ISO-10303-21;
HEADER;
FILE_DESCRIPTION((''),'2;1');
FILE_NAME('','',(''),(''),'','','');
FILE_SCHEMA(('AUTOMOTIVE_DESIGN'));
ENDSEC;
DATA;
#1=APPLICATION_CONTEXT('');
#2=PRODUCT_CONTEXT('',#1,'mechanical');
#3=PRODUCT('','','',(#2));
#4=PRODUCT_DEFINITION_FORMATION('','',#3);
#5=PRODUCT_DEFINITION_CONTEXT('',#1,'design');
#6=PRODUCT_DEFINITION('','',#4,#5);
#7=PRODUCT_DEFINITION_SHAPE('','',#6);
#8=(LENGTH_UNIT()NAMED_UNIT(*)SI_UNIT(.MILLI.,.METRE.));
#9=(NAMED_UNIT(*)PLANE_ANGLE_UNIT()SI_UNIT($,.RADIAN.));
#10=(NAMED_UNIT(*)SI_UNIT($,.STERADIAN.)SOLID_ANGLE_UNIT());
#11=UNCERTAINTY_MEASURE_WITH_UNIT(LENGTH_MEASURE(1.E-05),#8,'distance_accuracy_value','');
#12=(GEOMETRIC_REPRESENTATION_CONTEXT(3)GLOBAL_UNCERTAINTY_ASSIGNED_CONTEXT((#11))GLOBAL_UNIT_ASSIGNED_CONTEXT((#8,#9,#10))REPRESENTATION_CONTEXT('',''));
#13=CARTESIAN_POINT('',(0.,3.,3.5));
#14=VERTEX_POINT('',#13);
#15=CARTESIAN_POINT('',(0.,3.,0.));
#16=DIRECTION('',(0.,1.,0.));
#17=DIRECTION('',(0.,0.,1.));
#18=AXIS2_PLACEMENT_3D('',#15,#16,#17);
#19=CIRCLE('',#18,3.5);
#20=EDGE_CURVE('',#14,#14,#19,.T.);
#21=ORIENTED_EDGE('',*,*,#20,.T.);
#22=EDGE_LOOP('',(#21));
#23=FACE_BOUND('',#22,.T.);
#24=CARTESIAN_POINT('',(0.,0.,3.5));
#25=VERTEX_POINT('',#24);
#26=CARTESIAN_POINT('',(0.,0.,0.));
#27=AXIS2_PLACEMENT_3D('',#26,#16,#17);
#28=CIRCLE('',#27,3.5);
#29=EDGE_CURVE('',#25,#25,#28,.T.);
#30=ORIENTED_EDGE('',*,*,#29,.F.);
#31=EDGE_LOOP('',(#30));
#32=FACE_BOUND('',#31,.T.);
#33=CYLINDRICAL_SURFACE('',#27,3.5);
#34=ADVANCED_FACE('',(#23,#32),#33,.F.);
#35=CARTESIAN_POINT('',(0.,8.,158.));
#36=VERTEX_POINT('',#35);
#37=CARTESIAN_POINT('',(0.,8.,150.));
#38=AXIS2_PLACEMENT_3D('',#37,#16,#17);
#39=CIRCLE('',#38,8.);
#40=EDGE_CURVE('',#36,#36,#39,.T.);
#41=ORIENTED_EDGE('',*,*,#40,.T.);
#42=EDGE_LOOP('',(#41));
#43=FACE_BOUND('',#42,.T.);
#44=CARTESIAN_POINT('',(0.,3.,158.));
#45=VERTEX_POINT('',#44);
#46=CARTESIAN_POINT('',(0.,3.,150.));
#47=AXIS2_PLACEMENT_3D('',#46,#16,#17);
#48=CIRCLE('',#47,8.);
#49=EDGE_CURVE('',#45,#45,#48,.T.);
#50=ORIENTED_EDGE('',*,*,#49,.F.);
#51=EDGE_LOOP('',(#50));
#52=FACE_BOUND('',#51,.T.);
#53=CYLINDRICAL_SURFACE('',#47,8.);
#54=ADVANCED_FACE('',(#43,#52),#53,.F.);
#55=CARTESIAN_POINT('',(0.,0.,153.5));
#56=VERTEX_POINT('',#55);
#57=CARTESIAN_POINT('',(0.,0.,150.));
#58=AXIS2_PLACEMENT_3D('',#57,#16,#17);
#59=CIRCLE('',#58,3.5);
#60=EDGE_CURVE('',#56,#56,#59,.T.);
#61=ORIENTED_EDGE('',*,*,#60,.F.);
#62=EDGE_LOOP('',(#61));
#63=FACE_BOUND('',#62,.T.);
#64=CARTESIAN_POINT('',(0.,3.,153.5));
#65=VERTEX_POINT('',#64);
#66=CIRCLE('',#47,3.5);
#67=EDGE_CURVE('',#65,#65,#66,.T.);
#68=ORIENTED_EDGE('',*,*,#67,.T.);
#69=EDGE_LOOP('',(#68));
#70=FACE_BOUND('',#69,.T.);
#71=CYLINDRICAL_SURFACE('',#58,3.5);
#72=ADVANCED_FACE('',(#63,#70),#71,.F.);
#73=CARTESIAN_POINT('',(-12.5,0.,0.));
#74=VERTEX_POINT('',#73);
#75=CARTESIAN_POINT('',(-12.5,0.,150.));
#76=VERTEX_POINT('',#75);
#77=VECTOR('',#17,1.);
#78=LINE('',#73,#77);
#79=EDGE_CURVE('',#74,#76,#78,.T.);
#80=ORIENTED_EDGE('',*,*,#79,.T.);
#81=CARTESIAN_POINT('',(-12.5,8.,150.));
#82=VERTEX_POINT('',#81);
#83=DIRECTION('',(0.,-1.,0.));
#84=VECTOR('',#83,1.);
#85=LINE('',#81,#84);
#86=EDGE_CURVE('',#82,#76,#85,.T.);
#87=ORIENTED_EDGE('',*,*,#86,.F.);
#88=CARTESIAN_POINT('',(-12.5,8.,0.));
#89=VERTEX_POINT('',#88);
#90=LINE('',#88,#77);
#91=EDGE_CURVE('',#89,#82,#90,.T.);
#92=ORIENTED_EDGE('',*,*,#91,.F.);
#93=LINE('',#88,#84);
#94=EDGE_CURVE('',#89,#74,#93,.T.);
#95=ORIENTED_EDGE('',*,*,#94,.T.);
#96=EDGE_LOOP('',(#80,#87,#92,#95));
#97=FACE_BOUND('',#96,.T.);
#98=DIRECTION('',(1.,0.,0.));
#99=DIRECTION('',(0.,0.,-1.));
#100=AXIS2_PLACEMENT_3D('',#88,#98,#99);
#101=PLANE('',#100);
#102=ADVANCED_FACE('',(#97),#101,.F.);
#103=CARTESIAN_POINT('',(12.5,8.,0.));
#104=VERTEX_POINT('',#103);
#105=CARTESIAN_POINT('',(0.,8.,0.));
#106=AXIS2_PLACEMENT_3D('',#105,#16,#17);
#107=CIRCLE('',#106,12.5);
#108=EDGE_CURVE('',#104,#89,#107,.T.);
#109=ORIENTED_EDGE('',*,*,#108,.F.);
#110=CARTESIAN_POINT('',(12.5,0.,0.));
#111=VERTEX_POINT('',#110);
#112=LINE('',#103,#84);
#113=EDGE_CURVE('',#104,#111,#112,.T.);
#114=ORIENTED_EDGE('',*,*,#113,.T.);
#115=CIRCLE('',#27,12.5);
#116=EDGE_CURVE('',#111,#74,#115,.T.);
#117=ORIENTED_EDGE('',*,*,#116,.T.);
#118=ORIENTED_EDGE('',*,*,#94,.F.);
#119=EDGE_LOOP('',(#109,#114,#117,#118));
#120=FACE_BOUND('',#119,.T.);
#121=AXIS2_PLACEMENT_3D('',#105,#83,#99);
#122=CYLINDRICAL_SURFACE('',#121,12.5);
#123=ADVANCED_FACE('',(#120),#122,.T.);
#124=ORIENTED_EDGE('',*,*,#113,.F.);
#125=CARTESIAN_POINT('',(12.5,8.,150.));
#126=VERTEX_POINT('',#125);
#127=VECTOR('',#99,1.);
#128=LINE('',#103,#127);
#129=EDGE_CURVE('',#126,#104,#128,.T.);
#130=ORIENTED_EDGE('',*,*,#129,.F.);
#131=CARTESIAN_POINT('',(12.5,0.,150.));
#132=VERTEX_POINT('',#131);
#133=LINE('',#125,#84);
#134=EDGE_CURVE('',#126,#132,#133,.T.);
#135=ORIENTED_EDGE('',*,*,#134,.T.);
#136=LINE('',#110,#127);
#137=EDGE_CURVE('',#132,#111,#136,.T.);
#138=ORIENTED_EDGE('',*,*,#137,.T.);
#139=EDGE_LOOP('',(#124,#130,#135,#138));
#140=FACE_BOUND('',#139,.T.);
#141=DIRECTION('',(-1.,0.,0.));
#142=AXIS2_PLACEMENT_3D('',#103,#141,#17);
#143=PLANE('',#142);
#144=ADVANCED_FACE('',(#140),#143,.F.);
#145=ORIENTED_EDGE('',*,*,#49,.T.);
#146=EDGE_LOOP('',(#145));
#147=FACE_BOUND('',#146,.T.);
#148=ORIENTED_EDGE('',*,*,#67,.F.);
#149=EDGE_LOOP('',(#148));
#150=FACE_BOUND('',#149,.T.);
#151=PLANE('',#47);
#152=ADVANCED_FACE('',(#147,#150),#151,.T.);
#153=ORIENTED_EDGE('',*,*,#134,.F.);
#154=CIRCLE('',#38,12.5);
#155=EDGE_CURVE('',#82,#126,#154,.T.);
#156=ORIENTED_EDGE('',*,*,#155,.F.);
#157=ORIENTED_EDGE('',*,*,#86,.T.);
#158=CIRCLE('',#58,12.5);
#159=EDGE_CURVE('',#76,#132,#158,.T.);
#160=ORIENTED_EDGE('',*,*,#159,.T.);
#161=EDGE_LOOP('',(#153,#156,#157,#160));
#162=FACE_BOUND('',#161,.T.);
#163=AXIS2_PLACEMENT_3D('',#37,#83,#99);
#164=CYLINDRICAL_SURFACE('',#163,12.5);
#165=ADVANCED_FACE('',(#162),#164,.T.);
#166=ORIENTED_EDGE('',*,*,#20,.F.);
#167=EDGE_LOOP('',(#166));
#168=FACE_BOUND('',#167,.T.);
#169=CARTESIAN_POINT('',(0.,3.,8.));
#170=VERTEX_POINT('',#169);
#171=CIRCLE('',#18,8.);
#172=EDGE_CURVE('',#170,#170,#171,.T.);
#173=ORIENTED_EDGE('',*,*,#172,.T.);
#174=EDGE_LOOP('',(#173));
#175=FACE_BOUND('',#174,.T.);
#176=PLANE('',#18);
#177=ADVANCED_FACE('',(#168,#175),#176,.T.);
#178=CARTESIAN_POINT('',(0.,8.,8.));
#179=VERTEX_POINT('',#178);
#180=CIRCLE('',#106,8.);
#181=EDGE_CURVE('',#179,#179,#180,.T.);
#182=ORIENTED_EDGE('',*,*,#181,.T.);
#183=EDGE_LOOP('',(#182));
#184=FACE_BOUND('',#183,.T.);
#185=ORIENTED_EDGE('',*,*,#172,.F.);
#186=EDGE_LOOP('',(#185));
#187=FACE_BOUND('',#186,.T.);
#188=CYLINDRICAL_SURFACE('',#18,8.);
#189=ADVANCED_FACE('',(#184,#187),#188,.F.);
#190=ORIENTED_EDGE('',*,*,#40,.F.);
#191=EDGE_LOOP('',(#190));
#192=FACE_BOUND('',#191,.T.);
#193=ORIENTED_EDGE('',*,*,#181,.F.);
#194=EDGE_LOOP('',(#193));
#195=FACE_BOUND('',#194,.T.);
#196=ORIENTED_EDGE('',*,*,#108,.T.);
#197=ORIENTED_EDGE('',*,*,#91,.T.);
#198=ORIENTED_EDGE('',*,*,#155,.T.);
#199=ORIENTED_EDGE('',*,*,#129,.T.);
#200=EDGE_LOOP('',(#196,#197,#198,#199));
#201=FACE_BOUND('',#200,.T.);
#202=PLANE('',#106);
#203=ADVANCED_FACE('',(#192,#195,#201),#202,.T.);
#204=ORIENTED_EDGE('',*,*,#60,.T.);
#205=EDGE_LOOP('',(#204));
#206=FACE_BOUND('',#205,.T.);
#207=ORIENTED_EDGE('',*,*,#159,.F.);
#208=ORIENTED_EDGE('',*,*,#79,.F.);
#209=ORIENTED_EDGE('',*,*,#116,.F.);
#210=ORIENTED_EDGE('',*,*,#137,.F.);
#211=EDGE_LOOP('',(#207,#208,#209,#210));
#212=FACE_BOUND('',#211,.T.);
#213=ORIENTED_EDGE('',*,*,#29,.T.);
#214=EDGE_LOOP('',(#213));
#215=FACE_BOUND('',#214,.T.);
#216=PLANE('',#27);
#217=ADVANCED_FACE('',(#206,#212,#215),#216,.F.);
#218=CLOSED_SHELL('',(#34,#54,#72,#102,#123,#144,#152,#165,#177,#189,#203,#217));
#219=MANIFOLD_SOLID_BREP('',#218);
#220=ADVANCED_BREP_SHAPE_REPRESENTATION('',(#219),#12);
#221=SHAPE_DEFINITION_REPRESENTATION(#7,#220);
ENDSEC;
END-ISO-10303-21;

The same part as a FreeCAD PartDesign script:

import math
import FreeCAD as App
import Part
import Sketcher

doc = App.newDocument("Part")
params = doc.addObject("Spreadsheet::Sheet", "Params")
for row, (alias, value) in enumerate([
    ("sketch1_radius", "12.5 mm"),
    ("sketch1_height", "150 mm"),
    ("pad1_length", "8 mm"),
    ("sketch2_diameter", "16 mm"),
    ("pocket1_length", "5 mm"),
    ("sketch3_diameter", "7 mm"),
    ("sketch4_diameter", "16 mm"),
    ("pocket3_length", "5 mm"),
    ("sketch5_diameter", "7 mm"),
], start=1):
    params.set(f"A{row}", alias)
    params.set(f"B{row}", "=" + value)
    params.setAlias(f"B{row}", alias)

body = doc.addObject("PartDesign::Body", "Body")

# Sketch on XZ plane
sketch1 = body.newObject("Sketcher::SketchObject", "Sketch")
sketch1.AttachmentSupport = (doc.getObject("XZ_Plane"), [""])
sketch1.MapMode = "FlatFace"
sketch1.addGeometry([
    Part.LineSegment(App.Vector(-12, 0, 0), App.Vector(-12, 150, 0)),
    Part.ArcOfCircle(Part.Circle(App.Vector(0, 150, 0), App.Vector(0, 0, 1), 12), math.radians(0), math.radians(180)),
    Part.LineSegment(App.Vector(12, 150, 0), App.Vector(12, 0, 0)),
    Part.ArcOfCircle(Part.Circle(App.Vector(0, 0, 0), App.Vector(0, 0, 1), 12), math.radians(180), math.radians(360)),
], False)
sketch1.addConstraint([
    Sketcher.Constraint("Tangent", 0, 2, 1, 2),
    Sketcher.Constraint("Tangent", 1, 1, 2, 1),
    Sketcher.Constraint("Tangent", 2, 2, 3, 2),
    Sketcher.Constraint("Tangent", 3, 1, 0, 1),
    Sketcher.Constraint("Vertical", 0),
    Sketcher.Constraint("Vertical", 2),
    Sketcher.Constraint("Coincident", 3, 3, -1, 1),
    Sketcher.Constraint("Radius", 1, 12.5),
    Sketcher.Constraint("DistanceY", 0, 1, 0, 2, 150.0),
])
sketch1.setExpression("Constraints[7]", "Params.sketch1_radius")
sketch1.setExpression("Constraints[8]", "Params.sketch1_height")
pad1 = body.newObject("PartDesign::Pad", "Pad")
pad1.Profile = sketch1
pad1.setExpression("Length", "Params.pad1_length")
pad1.Reversed = True

# Sketch on XZ plane
sketch2 = body.newObject("Sketcher::SketchObject", "Sketch001")
sketch2.AttachmentSupport = (doc.getObject("XZ_Plane"), [""])
sketch2.MapMode = "FlatFace"
sketch2.AttachmentOffset = App.Placement(App.Vector(0, 0, -8), App.Rotation())
sketch2.addGeometry(Part.Circle(App.Vector(0, 0, 0), App.Vector(0, 0, 1), 8), False)
sketch2.addConstraint([
    Sketcher.Constraint("Coincident", 0, 3, -1, 1),
    Sketcher.Constraint("Diameter", 0, 16.0),
])
sketch2.setExpression("Constraints[1]", "Params.sketch2_diameter")
pocket1 = body.newObject("PartDesign::Pocket", "Pocket")
pocket1.Profile = sketch2
pocket1.setExpression("Length", "Params.pocket1_length")
pocket1.Reversed = True

# Sketch on XZ plane
sketch3 = body.newObject("Sketcher::SketchObject", "Sketch002")
sketch3.AttachmentSupport = (doc.getObject("XZ_Plane"), [""])
sketch3.MapMode = "FlatFace"
sketch3.AttachmentOffset = App.Placement(App.Vector(0, 0, -8), App.Rotation())
sketch3.addGeometry(Part.Circle(App.Vector(0, 0, 0), App.Vector(0, 0, 1), 3.5), False)
sketch3.addConstraint([
    Sketcher.Constraint("Coincident", 0, 3, -1, 1),
    Sketcher.Constraint("Diameter", 0, 7.0),
])
sketch3.setExpression("Constraints[1]", "Params.sketch3_diameter")
pocket2 = body.newObject("PartDesign::Pocket", "Pocket001")
pocket2.Profile = sketch3
pocket2.Type = "ThroughAll"
pocket2.Reversed = True

# Sketch on XZ plane
sketch4 = body.newObject("Sketcher::SketchObject", "Sketch003")
sketch4.AttachmentSupport = (doc.getObject("XZ_Plane"), [""])
sketch4.MapMode = "FlatFace"
sketch4.AttachmentOffset = App.Placement(App.Vector(0, 0, -8), App.Rotation())
sketch4.addGeometry(Part.Circle(App.Vector(0, 150, 0), App.Vector(0, 0, 1), 8), False)
sketch4.addConstraint([
    Sketcher.Constraint("PointOnObject", 0, 3, -2),
    Sketcher.Constraint("Diameter", 0, 16.0),
    Sketcher.Constraint("DistanceY", -1, 1, 0, 3, 150.0),
])
sketch4.setExpression("Constraints[1]", "Params.sketch4_diameter")
pocket3 = body.newObject("PartDesign::Pocket", "Pocket002")
pocket3.Profile = sketch4
pocket3.setExpression("Length", "Params.pocket3_length")
pocket3.Reversed = True

# Sketch on XZ plane
sketch5 = body.newObject("Sketcher::SketchObject", "Sketch004")
sketch5.AttachmentSupport = (doc.getObject("XZ_Plane"), [""])
sketch5.MapMode = "FlatFace"
sketch5.AttachmentOffset = App.Placement(App.Vector(0, 0, -8), App.Rotation())
sketch5.addGeometry(Part.Circle(App.Vector(0, 150, 0), App.Vector(0, 0, 1), 3.5), False)
sketch5.addConstraint([
    Sketcher.Constraint("PointOnObject", 0, 3, -2),
    Sketcher.Constraint("Diameter", 0, 7.0),
    Sketcher.Constraint("DistanceY", -1, 1, 0, 3, 150.0),
])
sketch5.setExpression("Constraints[1]", "Params.sketch5_diameter")
pocket4 = body.newObject("PartDesign::Pocket", "Pocket003")
pocket4.Profile = sketch5
pocket4.Type = "ThroughAll"
pocket4.Reversed = True

doc.recompute()
